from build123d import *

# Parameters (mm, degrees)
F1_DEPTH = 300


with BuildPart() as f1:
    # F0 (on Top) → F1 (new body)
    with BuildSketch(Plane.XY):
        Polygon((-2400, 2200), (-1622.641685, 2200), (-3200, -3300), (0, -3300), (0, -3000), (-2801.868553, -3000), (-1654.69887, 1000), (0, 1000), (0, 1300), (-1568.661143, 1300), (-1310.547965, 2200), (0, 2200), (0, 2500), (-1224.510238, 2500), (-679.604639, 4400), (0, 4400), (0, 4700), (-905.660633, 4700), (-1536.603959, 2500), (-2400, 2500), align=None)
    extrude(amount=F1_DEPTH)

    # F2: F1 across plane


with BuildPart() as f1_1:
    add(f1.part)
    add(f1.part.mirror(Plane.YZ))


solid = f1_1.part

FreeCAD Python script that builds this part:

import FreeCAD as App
import Part
import Sketcher

V = App.Vector


def add_polygon(sketch, points):
    """Adds a closed chain of lines whose ends are joined by coincident constraints."""
    first, n = sketch.GeometryCount, len(points)
    for a, b in zip(points, points[1:] + points[:1]):
        sketch.addGeometry(Part.LineSegment(App.Vector(*a, 0), App.Vector(*b, 0)), False)
    for i in range(n):
        sketch.addConstraint(Sketcher.Constraint("Coincident", first + i, 2, first + (i + 1) % n, 1))

doc = App.newDocument("Part")
body = doc.addObject("PartDesign::Body", "Body")

# Sketch on XY plane
sketch1 = doc.addObject("Sketcher::SketchObject", "Sketch")
body.addObject(sketch1)
sketch1.AttachmentSupport = (doc.XY_Plane, [""])
sketch1.MapMode = "FlatFace"
add_polygon(sketch1, [(-2400, 2200), (-1623, 2200), (-3200, -3300), (0, -3300), (0, -3000), (-2802, -3000), (-1655, 1000), (0, 1000), (0, 1300), (-1569, 1300), (-1311, 2200), (0, 2200), (0, 2500), (-1225, 2500), (-680, 4400), (0, 4400), (0, 4700), (-906, 4700), (-1537, 2500), (-2400, 2500)])  # lines 0-19
sketch1.addConstraint([
    Sketcher.Constraint("Horizontal", 0),
    Sketcher.Constraint("Horizontal", 2),
    Sketcher.Constraint("Vertical", 3),
    Sketcher.Constraint("Horizontal", 4),
    Sketcher.Constraint("Horizontal", 6),
    Sketcher.Constraint("Vertical", 7),
    Sketcher.Constraint("Horizontal", 8),
    Sketcher.Constraint("Horizontal", 10),
    Sketcher.Constraint("Vertical", 11),
    Sketcher.Constraint("Horizontal", 12),
    Sketcher.Constraint("Horizontal", 14),
    Sketcher.Constraint("Vertical", 15),
    Sketcher.Constraint("Horizontal", 16),
    Sketcher.Constraint("Horizontal", 18),
    Sketcher.Constraint("Vertical", 19),
    Sketcher.Constraint("PointOnObject", 2, 2, -2),
    Sketcher.Constraint("PointOnObject", 6, 2, -2),
    Sketcher.Constraint("PointOnObject", 10, 2, -2),
    Sketcher.Constraint("PointOnObject", 14, 2, -2),
    Sketcher.Constraint("Parallel", 1, 5),
    Sketcher.Constraint("Parallel", 5, 9),
    Sketcher.Constraint("Parallel", 9, 13),
    Sketcher.Constraint("Parallel", 13, 17),
    Sketcher.Constraint("Horizontal", 0, 2, 9, 2),
    Sketcher.Constraint("Horizontal", 12, 2, 17, 2),
    Sketcher.Constraint("Equal", 3, 7),
    Sketcher.Constraint("Equal", 7, 11),
    Sketcher.Constraint("Equal", 11, 15),
    Sketcher.Constraint("DistanceX", 2, 1, 2, 2, 3200.0),
    Sketcher.Constraint("DistanceY", 3, 1, 3, 2, 300.0),
    Sketcher.Constraint("DistanceY", -1, 1, 0, 2, 2200.0),
    Sketcher.Constraint("DistanceY", 1, 2, -1, 1, 3300.0),
    Sketcher.Constraint("DistanceY", -1, 1, 5, 2, 1000.0),
    Sketcher.Constraint("DistanceY", -1, 1, 13, 2, 4400.0),
    Sketcher.Constraint("DistanceX", 18, 2, -1, 1, 2400.0),
    Sketcher.Constraint("DistanceX", 6, 1, 6, 2, 1654.69887),
    Sketcher.Constraint("DistanceX", 12, 2, 12, 1, 1224.510238),
    Sketcher.Constraint("DistanceX", 14, 1, 14, 2, 679.604639),
    Sketcher.Constraint("DistanceX", 18, 2, 18, 1, 863.396041),
    Sketcher.Constraint("DistanceX", 8, 2, 8, 1, 1568.661143),
])
pad1 = doc.addObject("PartDesign::Pad", "Pad")
body.addObject(pad1)
pad1.Profile = sketch1
pad1.Length = 300
body2 = doc.addObject("PartDesign::Body", "Body001")
doc.recompute()

body2.BaseFeature = body
doc.recompute()

mirroring = doc.addObject("Part::Mirroring", "Mirroring")
mirroring.Source = body
mirroring.Base = V(0, 0, 0)
mirroring.Normal = V(1, 0, 0)
body3 = doc.addObject("PartDesign::Body", "Body002")
body3.BaseFeature = mirroring
boolean = doc.addObject("PartDesign::Boolean", "Boolean")
body2.addObject(boolean)
boolean.Type = "Fuse"
boolean.addObjects([body3])
doc.recompute()
mirroring.Visibility = False

doc.recompute()
